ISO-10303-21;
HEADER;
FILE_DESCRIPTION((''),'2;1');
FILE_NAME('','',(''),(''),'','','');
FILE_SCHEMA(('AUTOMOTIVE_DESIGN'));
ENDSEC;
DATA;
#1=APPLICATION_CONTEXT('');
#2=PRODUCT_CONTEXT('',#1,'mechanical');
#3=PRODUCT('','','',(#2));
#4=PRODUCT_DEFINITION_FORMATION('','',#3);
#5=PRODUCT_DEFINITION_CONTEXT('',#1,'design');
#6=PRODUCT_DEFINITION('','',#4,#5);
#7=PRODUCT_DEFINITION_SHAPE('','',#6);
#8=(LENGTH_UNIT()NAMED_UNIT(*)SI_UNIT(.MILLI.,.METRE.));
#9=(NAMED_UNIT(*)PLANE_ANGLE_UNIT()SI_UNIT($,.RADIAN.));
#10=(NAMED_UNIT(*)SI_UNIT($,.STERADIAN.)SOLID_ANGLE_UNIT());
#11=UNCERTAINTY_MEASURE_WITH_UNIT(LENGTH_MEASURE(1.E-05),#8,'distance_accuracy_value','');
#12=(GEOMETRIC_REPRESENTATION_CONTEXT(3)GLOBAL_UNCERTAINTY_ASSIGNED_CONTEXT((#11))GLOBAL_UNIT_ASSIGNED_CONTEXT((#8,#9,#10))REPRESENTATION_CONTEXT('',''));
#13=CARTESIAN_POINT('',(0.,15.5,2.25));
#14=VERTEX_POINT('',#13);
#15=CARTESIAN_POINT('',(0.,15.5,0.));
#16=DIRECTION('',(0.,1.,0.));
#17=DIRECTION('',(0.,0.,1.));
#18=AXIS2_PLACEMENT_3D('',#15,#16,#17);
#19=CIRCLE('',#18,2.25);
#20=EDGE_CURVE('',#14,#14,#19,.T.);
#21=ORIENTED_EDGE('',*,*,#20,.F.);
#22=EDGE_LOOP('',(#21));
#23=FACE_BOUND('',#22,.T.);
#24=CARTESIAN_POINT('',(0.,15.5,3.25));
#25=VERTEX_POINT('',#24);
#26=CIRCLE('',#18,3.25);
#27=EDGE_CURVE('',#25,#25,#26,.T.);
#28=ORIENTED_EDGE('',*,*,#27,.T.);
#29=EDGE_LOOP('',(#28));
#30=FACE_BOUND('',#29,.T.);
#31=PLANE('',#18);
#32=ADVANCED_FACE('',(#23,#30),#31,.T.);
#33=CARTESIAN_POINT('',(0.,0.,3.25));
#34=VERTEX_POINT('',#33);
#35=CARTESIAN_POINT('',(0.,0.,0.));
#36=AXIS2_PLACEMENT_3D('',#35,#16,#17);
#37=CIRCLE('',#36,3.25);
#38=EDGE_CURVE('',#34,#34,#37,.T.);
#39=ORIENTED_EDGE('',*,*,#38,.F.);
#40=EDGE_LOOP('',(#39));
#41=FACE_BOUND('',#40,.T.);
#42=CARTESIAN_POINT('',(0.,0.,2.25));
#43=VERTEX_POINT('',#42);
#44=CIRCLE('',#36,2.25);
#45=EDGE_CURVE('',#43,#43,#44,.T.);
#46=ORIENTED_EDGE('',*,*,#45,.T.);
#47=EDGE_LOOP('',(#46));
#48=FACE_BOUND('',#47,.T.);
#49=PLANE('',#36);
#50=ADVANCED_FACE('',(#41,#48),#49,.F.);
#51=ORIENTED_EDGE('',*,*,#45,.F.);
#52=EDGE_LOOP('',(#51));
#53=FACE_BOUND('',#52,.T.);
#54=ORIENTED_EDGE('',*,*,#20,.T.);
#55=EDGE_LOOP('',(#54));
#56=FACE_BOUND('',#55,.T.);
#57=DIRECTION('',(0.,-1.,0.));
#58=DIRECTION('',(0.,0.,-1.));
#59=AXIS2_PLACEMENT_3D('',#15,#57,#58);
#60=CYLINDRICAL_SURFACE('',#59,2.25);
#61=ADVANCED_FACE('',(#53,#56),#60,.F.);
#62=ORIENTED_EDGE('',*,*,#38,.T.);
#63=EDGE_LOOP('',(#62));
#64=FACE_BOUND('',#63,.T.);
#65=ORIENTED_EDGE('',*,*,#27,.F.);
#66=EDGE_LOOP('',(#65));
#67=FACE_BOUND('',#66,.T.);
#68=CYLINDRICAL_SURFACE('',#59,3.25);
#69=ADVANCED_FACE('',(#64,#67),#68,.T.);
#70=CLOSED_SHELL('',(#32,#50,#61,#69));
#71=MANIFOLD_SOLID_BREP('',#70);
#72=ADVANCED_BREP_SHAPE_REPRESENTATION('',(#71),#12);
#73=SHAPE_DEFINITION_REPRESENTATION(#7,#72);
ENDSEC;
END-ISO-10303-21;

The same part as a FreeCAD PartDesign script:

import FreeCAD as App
import Part
import Sketcher
Q = App.Units.Quantity

doc = App.newDocument("Part")
body = doc.addObject("PartDesign::Body", "Body")

# Sketch on XZ plane
sketch1 = body.newObject("Sketcher::SketchObject", "Sketch")
sketch1.AttachmentSupport = (doc.getObject("XZ_Plane"), [""])
sketch1.MapMode = "FlatFace"
sketch1.addGeometry([
    Part.Circle(App.Vector(0, 0, 0), App.Vector(0, 0, 1), 3.2),
    Part.Circle(App.Vector(0, 0, 0), App.Vector(0, 0, 1), 2.2),
], False)
sketch1.addConstraint([
    Sketcher.Constraint("Coincident", 0, 3, -1, 1),
    Sketcher.Constraint("Coincident", 1, 3, -1, 1),
    Sketcher.Constraint("Diameter", 0, Q("6.5 mm")),
    Sketcher.Constraint("Diameter", 1, Q("4.5 mm")),
])
pad1 = body.newObject("PartDesign::Pad", "Pad")
pad1.Profile = sketch1
pad1.Length = 15.5
pad1.Reversed = True

doc.recompute()
